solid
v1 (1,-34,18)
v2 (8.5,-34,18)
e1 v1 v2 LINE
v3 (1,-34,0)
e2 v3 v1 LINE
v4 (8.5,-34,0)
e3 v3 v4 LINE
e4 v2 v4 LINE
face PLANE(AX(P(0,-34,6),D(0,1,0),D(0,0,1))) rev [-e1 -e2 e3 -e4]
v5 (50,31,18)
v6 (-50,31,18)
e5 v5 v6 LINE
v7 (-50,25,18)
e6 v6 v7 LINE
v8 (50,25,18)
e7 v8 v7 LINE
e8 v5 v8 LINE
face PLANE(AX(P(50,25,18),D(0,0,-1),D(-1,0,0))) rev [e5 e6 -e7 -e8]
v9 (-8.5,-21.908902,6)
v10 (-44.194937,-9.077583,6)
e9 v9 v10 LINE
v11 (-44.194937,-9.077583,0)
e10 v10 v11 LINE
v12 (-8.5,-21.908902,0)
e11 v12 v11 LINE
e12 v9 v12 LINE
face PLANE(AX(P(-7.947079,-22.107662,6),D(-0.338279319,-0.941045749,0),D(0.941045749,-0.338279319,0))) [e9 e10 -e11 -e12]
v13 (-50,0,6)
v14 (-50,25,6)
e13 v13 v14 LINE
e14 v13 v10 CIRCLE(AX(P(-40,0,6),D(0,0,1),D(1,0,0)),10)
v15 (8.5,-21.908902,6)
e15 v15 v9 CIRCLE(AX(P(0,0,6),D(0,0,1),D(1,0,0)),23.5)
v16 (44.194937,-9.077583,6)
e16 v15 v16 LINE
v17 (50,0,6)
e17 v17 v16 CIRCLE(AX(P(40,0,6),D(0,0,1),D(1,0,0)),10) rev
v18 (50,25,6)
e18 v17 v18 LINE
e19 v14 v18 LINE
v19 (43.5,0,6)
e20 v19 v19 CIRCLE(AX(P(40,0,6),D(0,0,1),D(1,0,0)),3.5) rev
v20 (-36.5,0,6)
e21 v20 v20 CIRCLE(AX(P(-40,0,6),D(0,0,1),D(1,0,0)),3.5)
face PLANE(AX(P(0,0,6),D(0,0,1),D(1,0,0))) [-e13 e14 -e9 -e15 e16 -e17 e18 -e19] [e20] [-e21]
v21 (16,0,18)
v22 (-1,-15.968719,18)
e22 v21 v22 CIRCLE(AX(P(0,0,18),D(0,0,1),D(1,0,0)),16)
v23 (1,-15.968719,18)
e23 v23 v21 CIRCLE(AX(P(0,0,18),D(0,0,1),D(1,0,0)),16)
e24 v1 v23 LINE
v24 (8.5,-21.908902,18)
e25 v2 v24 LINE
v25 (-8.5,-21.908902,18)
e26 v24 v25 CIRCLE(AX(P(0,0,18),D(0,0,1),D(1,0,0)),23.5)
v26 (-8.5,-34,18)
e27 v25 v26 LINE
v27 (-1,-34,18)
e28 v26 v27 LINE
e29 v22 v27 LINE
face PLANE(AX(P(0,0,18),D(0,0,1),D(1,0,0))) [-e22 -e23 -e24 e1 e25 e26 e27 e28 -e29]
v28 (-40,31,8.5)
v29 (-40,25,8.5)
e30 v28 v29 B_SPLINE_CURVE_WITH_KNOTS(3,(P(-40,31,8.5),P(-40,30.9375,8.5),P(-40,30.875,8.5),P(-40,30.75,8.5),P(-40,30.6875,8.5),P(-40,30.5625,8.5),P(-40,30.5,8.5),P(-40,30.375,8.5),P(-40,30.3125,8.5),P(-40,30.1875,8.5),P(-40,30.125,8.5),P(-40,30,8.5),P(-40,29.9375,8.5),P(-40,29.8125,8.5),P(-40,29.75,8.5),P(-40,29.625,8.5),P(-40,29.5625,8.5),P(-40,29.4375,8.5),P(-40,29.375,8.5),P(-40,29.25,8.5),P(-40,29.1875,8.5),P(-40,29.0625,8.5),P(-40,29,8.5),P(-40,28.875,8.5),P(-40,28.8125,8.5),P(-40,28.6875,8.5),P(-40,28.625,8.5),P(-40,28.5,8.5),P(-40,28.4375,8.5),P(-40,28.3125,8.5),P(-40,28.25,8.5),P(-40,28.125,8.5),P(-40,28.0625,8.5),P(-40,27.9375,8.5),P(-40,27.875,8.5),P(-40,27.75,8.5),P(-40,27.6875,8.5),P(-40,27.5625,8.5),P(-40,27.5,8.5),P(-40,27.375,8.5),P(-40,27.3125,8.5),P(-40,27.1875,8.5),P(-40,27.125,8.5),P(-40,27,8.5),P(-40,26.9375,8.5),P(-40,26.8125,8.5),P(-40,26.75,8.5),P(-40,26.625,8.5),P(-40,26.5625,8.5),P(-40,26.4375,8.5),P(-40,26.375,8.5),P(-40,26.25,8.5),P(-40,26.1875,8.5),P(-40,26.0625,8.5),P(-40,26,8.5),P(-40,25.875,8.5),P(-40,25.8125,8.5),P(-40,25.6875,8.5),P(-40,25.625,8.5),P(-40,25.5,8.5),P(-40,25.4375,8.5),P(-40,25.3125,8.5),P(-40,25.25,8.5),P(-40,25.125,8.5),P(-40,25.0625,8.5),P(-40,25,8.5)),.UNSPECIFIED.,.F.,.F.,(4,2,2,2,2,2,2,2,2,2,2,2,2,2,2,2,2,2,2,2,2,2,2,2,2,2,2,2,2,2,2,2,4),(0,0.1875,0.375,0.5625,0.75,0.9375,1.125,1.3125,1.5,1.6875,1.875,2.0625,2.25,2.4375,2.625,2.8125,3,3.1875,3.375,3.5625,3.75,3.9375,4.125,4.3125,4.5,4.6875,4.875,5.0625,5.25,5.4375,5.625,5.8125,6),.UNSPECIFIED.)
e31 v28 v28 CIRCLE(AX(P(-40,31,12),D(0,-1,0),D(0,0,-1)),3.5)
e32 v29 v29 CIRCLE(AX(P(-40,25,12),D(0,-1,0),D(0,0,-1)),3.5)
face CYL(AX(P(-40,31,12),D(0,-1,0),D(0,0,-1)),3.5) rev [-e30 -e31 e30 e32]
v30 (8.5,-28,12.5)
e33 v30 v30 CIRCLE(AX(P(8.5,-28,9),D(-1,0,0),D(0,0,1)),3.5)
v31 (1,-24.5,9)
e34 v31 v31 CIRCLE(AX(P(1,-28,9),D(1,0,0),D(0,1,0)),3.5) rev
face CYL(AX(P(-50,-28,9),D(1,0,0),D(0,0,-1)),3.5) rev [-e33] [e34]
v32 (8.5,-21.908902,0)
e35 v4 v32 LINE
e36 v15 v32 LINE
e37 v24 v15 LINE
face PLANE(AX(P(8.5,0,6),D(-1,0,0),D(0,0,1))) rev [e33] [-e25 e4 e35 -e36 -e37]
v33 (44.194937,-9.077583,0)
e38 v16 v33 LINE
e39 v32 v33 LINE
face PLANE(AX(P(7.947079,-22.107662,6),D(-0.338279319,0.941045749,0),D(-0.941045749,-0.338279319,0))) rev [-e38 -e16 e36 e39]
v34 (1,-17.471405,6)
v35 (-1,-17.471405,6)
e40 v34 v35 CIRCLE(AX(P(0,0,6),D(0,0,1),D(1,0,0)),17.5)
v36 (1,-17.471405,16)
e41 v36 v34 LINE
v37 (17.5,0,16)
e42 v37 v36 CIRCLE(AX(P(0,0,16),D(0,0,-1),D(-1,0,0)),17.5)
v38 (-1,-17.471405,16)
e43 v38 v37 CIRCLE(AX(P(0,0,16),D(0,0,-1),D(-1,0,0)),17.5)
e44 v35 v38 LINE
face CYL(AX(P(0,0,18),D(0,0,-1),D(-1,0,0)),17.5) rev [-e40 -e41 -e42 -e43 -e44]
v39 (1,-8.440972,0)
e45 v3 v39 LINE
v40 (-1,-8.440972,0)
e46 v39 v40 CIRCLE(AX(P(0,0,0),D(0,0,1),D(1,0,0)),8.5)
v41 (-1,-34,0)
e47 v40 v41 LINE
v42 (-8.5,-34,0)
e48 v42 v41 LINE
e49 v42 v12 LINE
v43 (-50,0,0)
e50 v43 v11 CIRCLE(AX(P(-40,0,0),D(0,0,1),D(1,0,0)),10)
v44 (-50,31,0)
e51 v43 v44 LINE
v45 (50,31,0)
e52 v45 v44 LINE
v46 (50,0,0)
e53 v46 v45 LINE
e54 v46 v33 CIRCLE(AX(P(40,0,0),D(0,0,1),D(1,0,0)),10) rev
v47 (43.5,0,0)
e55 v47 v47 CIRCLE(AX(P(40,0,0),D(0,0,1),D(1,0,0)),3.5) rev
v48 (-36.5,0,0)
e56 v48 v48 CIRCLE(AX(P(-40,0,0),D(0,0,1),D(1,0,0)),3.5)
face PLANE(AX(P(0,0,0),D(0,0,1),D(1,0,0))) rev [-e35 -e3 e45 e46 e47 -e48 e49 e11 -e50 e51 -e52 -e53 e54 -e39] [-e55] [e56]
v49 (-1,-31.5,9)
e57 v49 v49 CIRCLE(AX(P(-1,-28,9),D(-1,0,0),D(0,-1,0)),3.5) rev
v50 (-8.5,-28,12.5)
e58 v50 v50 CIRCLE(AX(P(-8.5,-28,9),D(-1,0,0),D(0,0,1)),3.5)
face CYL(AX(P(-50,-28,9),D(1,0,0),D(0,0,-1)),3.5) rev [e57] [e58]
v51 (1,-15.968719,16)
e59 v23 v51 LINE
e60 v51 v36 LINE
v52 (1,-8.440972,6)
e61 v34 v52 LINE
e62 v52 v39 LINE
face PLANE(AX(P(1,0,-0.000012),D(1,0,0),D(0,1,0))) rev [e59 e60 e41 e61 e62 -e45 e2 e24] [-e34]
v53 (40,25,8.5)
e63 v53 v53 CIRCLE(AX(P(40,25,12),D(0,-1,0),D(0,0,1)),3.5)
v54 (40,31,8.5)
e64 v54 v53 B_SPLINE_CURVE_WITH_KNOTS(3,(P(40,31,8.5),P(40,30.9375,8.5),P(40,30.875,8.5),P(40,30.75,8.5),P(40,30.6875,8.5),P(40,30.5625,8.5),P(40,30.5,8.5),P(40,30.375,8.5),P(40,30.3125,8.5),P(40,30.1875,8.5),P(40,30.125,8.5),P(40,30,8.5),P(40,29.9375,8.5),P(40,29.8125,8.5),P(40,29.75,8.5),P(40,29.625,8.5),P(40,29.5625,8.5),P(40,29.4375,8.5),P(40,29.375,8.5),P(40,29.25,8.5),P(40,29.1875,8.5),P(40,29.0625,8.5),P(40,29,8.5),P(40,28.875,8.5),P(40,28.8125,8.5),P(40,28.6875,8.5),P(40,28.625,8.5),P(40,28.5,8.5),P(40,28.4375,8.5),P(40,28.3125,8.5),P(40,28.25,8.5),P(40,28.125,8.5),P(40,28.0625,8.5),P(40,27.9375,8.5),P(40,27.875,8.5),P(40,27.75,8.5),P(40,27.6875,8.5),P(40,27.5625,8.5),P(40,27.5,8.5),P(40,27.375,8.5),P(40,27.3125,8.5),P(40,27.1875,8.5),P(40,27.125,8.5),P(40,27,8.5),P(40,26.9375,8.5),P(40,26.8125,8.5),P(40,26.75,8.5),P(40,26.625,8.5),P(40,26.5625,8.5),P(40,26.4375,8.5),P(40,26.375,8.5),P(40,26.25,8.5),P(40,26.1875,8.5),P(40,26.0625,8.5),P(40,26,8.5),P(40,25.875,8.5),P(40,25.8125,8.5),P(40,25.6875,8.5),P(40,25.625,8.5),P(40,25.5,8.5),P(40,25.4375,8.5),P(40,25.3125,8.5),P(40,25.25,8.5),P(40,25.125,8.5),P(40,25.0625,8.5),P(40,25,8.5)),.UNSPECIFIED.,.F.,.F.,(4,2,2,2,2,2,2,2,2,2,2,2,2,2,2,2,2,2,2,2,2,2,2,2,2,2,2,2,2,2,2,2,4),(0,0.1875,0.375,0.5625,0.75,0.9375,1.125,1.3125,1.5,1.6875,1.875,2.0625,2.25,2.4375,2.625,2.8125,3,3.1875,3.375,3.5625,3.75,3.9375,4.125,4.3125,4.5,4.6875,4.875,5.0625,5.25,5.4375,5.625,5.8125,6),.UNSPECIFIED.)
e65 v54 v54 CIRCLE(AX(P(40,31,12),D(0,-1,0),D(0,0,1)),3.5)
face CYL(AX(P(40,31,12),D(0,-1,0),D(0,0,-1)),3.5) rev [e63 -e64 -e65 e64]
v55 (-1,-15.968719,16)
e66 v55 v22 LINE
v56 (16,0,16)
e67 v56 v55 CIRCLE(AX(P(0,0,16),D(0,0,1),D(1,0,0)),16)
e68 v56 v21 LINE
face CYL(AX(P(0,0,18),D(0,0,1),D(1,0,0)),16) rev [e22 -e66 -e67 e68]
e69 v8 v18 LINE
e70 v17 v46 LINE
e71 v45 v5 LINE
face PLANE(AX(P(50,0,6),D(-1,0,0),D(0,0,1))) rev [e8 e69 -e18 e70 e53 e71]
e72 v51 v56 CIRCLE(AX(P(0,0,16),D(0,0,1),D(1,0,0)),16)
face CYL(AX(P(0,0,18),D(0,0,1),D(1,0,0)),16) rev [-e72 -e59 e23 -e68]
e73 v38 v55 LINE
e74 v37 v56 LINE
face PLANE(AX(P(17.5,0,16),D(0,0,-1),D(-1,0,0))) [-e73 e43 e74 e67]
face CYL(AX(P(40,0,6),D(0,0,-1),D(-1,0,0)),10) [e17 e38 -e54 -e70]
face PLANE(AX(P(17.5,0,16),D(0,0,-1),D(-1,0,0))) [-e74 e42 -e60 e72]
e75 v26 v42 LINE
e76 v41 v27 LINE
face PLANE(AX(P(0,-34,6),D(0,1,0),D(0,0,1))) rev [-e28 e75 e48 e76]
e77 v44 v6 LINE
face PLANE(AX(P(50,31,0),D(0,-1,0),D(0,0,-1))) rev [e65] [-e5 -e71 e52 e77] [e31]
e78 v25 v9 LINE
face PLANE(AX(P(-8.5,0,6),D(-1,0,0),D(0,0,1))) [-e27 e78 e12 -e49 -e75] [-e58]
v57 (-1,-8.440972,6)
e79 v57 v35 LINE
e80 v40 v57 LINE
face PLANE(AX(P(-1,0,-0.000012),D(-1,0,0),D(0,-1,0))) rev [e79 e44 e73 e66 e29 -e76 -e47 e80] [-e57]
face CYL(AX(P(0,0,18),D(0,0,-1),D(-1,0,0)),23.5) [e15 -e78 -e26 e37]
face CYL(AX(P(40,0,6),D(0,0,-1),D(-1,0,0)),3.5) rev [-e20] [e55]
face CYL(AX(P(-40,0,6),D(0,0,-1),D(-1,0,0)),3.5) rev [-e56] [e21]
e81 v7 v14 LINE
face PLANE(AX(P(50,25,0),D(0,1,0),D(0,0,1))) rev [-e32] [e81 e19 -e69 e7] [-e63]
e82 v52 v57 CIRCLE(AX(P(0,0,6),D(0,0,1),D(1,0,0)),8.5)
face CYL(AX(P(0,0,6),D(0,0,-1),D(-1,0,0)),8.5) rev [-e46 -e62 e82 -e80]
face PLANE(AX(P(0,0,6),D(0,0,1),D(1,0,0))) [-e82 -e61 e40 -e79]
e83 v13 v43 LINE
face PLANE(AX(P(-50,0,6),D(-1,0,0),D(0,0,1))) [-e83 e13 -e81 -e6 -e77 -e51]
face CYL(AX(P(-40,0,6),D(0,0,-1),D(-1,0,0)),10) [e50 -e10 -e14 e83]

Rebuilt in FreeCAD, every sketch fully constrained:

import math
import FreeCAD as App
import Part
import Sketcher
Q = App.Units.Quantity

doc = App.newDocument("Part")
body = doc.addObject("PartDesign::Body", "Body")

# Sketch on XY plane
sketch1 = body.newObject("Sketcher::SketchObject", "Sketch")
sketch1.AttachmentSupport = (doc.getObject("XY_Plane"), [""])
sketch1.MapMode = "FlatFace"
sketch1.addGeometry([
    Part.LineSegment(App.Vector(-42.5, -9.7, 0), App.Vector(-8.5, -21.9, 0)),  # 0
    Part.LineSegment(App.Vector(-8.5, -21.9, 0), App.Vector(-8.5, -34, 0)),  # 1
    Part.LineSegment(App.Vector(-8.5, -34, 0), App.Vector(8.5, -34, 0)),  # 2
    Part.LineSegment(App.Vector(8.5, -34, 0), App.Vector(8.5, -21.9, 0)),  # 3
    Part.LineSegment(App.Vector(8.5, -21.9, 0), App.Vector(42.5, -9.7, 0)),  # 4
    Part.LineSegment(App.Vector(42.5, -9.7, 0), App.Vector(44.2, -9.1, 0)),  # 5
    Part.ArcOfCircle(Part.Circle(App.Vector(40, 0, 0), App.Vector(0, 0, 1), 10), math.radians(-65), math.radians(0)),  # 6
    Part.LineSegment(App.Vector(50, 0, 0), App.Vector(50, 25, 0)),  # 7
    Part.LineSegment(App.Vector(50, 25, 0), App.Vector(-50, 25, 0)),  # 8
    Part.LineSegment(App.Vector(-50, 25, 0), App.Vector(-50, 0, 0)),  # 9
    Part.ArcOfCircle(Part.Circle(App.Vector(-40, 0, 0), App.Vector(0, 0, 1), 10), math.radians(180), math.radians(245)),  # 10
    Part.LineSegment(App.Vector(-44.2, -9.1, 0), App.Vector(-42.5, -9.7, 0)),  # 11
    Part.Circle(App.Vector(-40, 0, 0), App.Vector(0, 0, 1), 3.5),  # 12
    Part.Circle(App.Vector(0, 0, 0), App.Vector(0, 0, 1), 8.5),  # 13
    Part.Circle(App.Vector(40, 0, 0), App.Vector(0, 0, 1), 3.5),  # 14
], False)
sketch1.addConstraint([
    Sketcher.Constraint("Coincident", 0, 2, 1, 1),
    Sketcher.Constraint("Coincident", 1, 2, 2, 1),
    Sketcher.Constraint("Coincident", 2, 2, 3, 1),
    Sketcher.Constraint("Coincident", 3, 2, 4, 1),
    Sketcher.Constraint("Coincident", 4, 2, 5, 1),
    Sketcher.Constraint("Coincident", 5, 2, 6, 1),
    Sketcher.Constraint("Tangent", 6, 2, 7, 1),
    Sketcher.Constraint("Coincident", 7, 2, 8, 1),
    Sketcher.Constraint("Coincident", 8, 2, 9, 1),
    Sketcher.Constraint("Tangent", 9, 2, 10, 1),
    Sketcher.Constraint("Coincident", 10, 2, 11, 1),
    Sketcher.Constraint("Coincident", 11, 2, 0, 1),
    Sketcher.Constraint("Vertical", 1),
    Sketcher.Constraint("Horizontal", 2),
    Sketcher.Constraint("Vertical", 3),
    Sketcher.Constraint("Vertical", 7),
    Sketcher.Constraint("Horizontal", 8),
    Sketcher.Constraint("Vertical", 9),
    Sketcher.Constraint("Coincident", 13, 3, -1, 1),
    Sketcher.Constraint("Coincident", 12, 3, 10, 3),
    Sketcher.Constraint("Coincident", 14, 3, 6, 3),
    Sketcher.Constraint("Equal", 6, 10),
    Sketcher.Constraint("Equal", 12, 14),
    Sketcher.Constraint("Symmetric", 6, 3, 10, 3, -1, 1),
    Sketcher.Constraint("Symmetric", 0, 2, 3, 2, -2),
    Sketcher.Constraint("Symmetric", 5, 2, 10, 2, -2),
    Sketcher.Constraint("Symmetric", 4, 2, 11, 2, -2),
    Sketcher.Constraint("Parallel", 4, 5),
    Sketcher.Constraint("Diameter", 12, Q("7 mm")),
    Sketcher.Constraint("Diameter", 13, Q("17 mm")),
    Sketcher.Constraint("Radius", 6, Q("10 mm")),
    Sketcher.Constraint("DistanceX", 2, 1, 2, 2, Q("17 mm")),
    Sketcher.Constraint("DistanceX", 8, 2, 8, 1, Q("100 mm")),
    Sketcher.Constraint("DistanceY", 7, 1, 7, 2, Q("25 mm")),
    Sketcher.Constraint("DistanceY", 1, 2, -1, 1, Q("34 mm")),
    Sketcher.Constraint("Distance", 0, Q("36.177401 mm")),
    Sketcher.Constraint("Distance", 5, Q("1.753738 mm")),
    Sketcher.Constraint("DistanceY", 1, 2, 1, 1, Q("12.091098 mm")),
])
pad1 = body.newObject("PartDesign::Pad", "Pad")
pad1.Profile = sketch1
pad1.Length = 6

# Sketch on XY plane
sketch2 = body.newObject("Sketcher::SketchObject", "Sketch001")
sketch2.AttachmentSupport = (doc.getObject("XY_Plane"), [""])
sketch2.MapMode = "FlatFace"
sketch2.AttachmentOffset = App.Placement(App.Vector(0, 0, 6), App.Rotation())
sketch2.addGeometry([
    Part.LineSegment(App.Vector(-8, -34, 0), App.Vector(8, -34, 0)),  # 0
    Part.LineSegment(App.Vector(8, -34, 0), App.Vector(8, -22, 0)),  # 1
    Part.ArcOfCircle(Part.Circle(App.Vector(0, 0, 0), App.Vector(0, 0, 1), 24), math.radians(-69), math.radians(249)),  # 2
    Part.LineSegment(App.Vector(-8, -22, 0), App.Vector(-8, -34, 0)),  # 3
    Part.Circle(App.Vector(0, 0, 0), App.Vector(0, 0, 1), 18),  # 4
], False)
sketch2.addConstraint([
    Sketcher.Constraint("Coincident", 0, 2, 1, 1),
    Sketcher.Constraint("Coincident", 1, 2, 2, 1),
    Sketcher.Constraint("Coincident", 2, 2, 3, 1),
    Sketcher.Constraint("Coincident", 3, 2, 0, 1),
    Sketcher.Constraint("Horizontal", 0),
    Sketcher.Constraint("Vertical", 1),
    Sketcher.Constraint("Vertical", 3),
    Sketcher.Constraint("Coincident", 2, 3, -1, 1),
    Sketcher.Constraint("Coincident", 4, 3, -1, 1),
    Sketcher.Constraint("Horizontal", 1, 2, 2, 2),
    Sketcher.Constraint("Diameter", 4, Q("35 mm")),
    Sketcher.Constraint("Radius", 2, Q("23.5 mm")),
    Sketcher.Constraint("DistanceX", 0, 1, 0, 2, Q("17 mm")),
    Sketcher.Constraint("DistanceY", 0, 2, -1, 1, Q("34 mm")),
])
pad2 = body.newObject("PartDesign::Pad", "Pad001")
pad2.Profile = sketch2
pad2.Length = 12

# Sketch on XZ plane
sketch3 = body.newObject("Sketcher::SketchObject", "Sketch002")
sketch3.AttachmentSupport = (doc.getObject("XZ_Plane"), [""])
sketch3.MapMode = "FlatFace"
sketch3.addGeometry([
    Part.LineSegment(App.Vector(16, 16, 0), App.Vector(16, 18, 0)),
    Part.LineSegment(App.Vector(16, 18, 0), App.Vector(17.5, 18, 0)),
    Part.LineSegment(App.Vector(17.5, 18, 0), App.Vector(17.5, 16, 0)),
    Part.LineSegment(App.Vector(17.5, 16, 0), App.Vector(16, 16, 0)),
], False)
sketch3.addConstraint([
    Sketcher.Constraint("Coincident", 0, 2, 1, 1),
    Sketcher.Constraint("Coincident", 1, 2, 2, 1),
    Sketcher.Constraint("Coincident", 2, 2, 3, 1),
    Sketcher.Constraint("Coincident", 3, 2, 0, 1),
    Sketcher.Constraint("Vertical", 0),
    Sketcher.Constraint("Horizontal", 1),
    Sketcher.Constraint("Vertical", 2),
    Sketcher.Constraint("Horizontal", 3),
    Sketcher.Constraint("DistanceY", 0, 1, 0, 2, Q("2 mm")),
    Sketcher.Constraint("DistanceX", 1, 1, 1, 2, Q("1.5 mm")),
    Sketcher.Constraint("DistanceX", -1, 1, 0, 2, Q("16 mm")),
    Sketcher.Constraint("DistanceY", -1, 1, 0, 2, Q("18 mm")),
])

# Sketch on XY plane
sketch4 = body.newObject("Sketcher::SketchObject", "Sketch003")
sketch4.AttachmentSupport = (doc.getObject("XY_Plane"), [""])
sketch4.MapMode = "FlatFace"
sketch4.AttachmentOffset = App.Placement(App.Vector(0, 0, 18), App.Rotation())
sketch4.addGeometry([
    Part.ArcOfCircle(Part.Circle(App.Vector(0, 0, 0), App.Vector(0, 0, 1), 17), math.radians(0), math.radians(90)),
    Part.ArcOfCircle(Part.Circle(App.Vector(0, 0, 0), App.Vector(0, 0, 1), 17), math.radians(90), math.radians(180)),
    Part.ArcOfCircle(Part.Circle(App.Vector(0, 0, 0), App.Vector(0, 0, 1), 17), math.radians(180), math.radians(270)),
    Part.ArcOfCircle(Part.Circle(App.Vector(0, 0, 0), App.Vector(0, 0, 1), 17), math.radians(-90), math.radians(0)),
], False)
sketch4.addConstraint([
    Sketcher.Constraint("Tangent", 0, 2, 1, 1),
    Sketcher.Constraint("Tangent", 1, 2, 2, 1),
    Sketcher.Constraint("Tangent", 2, 2, 3, 1),
    Sketcher.Constraint("Tangent", 3, 2, 0, 1),
    Sketcher.Constraint("Coincident", 0, 3, -1, 1),
    Sketcher.Constraint("Equal", 0, 1),
    Sketcher.Constraint("PointOnObject", 0, 2, -2),
    Sketcher.Constraint("PointOnObject", 1, 2, -1),
    Sketcher.Constraint("PointOnObject", 2, 2, -2),
    Sketcher.Constraint("PointOnObject", 3, 2, -1),
    Sketcher.Constraint("Radius", 0, Q("17.5 mm")),
])
doc.recompute()

additivepipe = body.newObject("PartDesign::AdditivePipe", "AdditivePipe")
additivepipe.Profile = sketch3
additivepipe.Spine = (sketch4, ["Edge1", "Edge2", "Edge3", "Edge4"])

# Sketch on YZ plane
sketch5 = body.newObject("Sketcher::SketchObject", "Sketch004")
sketch5.AttachmentSupport = (doc.getObject("YZ_Plane"), [""])
sketch5.MapMode = "FlatFace"
sketch5.addGeometry(Part.Circle(App.Vector(-28, 9, 0), App.Vector(0, 0, 1), 3.5), False)
sketch5.addConstraint([
    Sketcher.Constraint("Diameter", 0, Q("7 mm")),
    Sketcher.Constraint("DistanceX", 0, 3, -1, 1, Q("28 mm")),
    Sketcher.Constraint("DistanceY", -1, 1, 0, 3, Q("9 mm")),
])
pocket1 = body.newObject("PartDesign::Pocket", "Pocket")
pocket1.Profile = sketch5
pocket1.Type = "ThroughAll"
pocket1.Midplane = True

# Sketch on YZ plane
sketch6 = body.newObject("Sketcher::SketchObject", "Sketch005")
sketch6.AttachmentSupport = (doc.getObject("YZ_Plane"), [""])
sketch6.MapMode = "FlatFace"
sketch6.addGeometry([
    Part.LineSegment(App.Vector(31, 18, 0), App.Vector(25, 18, 0)),
    Part.LineSegment(App.Vector(25, 18, 0), App.Vector(25, 0, 0)),
    Part.LineSegment(App.Vector(25, 0, 0), App.Vector(31, 0, 0)),
    Part.LineSegment(App.Vector(31, 0, 0), App.Vector(31, 18, 0)),
], False)
sketch6.addConstraint([
    Sketcher.Constraint("Coincident", 0, 2, 1, 1),
    Sketcher.Constraint("Coincident", 1, 2, 2, 1),
    Sketcher.Constraint("Coincident", 2, 2, 3, 1),
    Sketcher.Constraint("Coincident", 3, 2, 0, 1),
    Sketcher.Constraint("Horizontal", 0),
    Sketcher.Constraint("Vertical", 1),
    Sketcher.Constraint("Horizontal", 2),
    Sketcher.Constraint("Vertical", 3),
    Sketcher.Constraint("PointOnObject", 1, 2, -1),
    Sketcher.Constraint("DistanceX", 0, 2, 0, 1, Q("6 mm")),
    Sketcher.Constraint("DistanceY", 1, 2, 1, 1, Q("18 mm")),
    Sketcher.Constraint("DistanceX", -1, 1, 0, 2, Q("25 mm")),
])
pad3 = body.newObject("PartDesign::Pad", "Pad002")
pad3.Profile = sketch6
pad3.Type = "TwoLengths"
pad3.Length = 50
pad3.Length2 = 50

# Sketch on XY plane
sketch7 = body.newObject("Sketcher::SketchObject", "Sketch006")
sketch7.AttachmentSupport = (doc.getObject("XY_Plane"), [""])
sketch7.MapMode = "FlatFace"
sketch7.addGeometry([
    Part.LineSegment(App.Vector(-1, 0, 0), App.Vector(-1, -34, 0)),
    Part.LineSegment(App.Vector(-1, -34, 0), App.Vector(1, -34, 0)),
    Part.LineSegment(App.Vector(1, -34, 0), App.Vector(1, 0, 0)),
    Part.LineSegment(App.Vector(1, 0, 0), App.Vector(-1, 0, 0)),
], False)
sketch7.addConstraint([
    Sketcher.Constraint("Coincident", 0, 2, 1, 1),
    Sketcher.Constraint("Coincident", 1, 2, 2, 1),
    Sketcher.Constraint("Coincident", 2, 2, 3, 1),
    Sketcher.Constraint("Coincident", 3, 2, 0, 1),
    Sketcher.Constraint("Vertical", 0),
    Sketcher.Constraint("Horizontal", 1),
    Sketcher.Constraint("Vertical", 2),
    Sketcher.Constraint("Horizontal", 3),
    Sketcher.Constraint("Symmetric", 2, 2, 3, 2, -1, 1),
    Sketcher.Constraint("DistanceX", 1, 1, 1, 2, Q("2 mm")),
    Sketcher.Constraint("DistanceY", 0, 2, 0, 1, Q("34 mm")),
])
pocket2 = body.newObject("PartDesign::Pocket", "Pocket001")
pocket2.Profile = sketch7
pocket2.Type = "ThroughAll"
pocket2.Midplane = True

# Sketch on XZ plane
sketch8 = body.newObject("Sketcher::SketchObject", "Sketch007")
sketch8.AttachmentSupport = (doc.getObject("XZ_Plane"), [""])
sketch8.MapMode = "FlatFace"
sketch8.AttachmentOffset = App.Placement(App.Vector(0, 0, -25), App.Rotation())
sketch8.addGeometry([
    Part.Circle(App.Vector(-40, 12, 0), App.Vector(0, 0, 1), 3.5),
    Part.Circle(App.Vector(40, 12, 0), App.Vector(0, 0, 1), 3.5),
], False)
sketch8.addConstraint([
    Sketcher.Constraint("Equal", 0, 1),
    Sketcher.Constraint("Symmetric", 0, 3, 1, 3, -2),
    Sketcher.Constraint("Diameter", 0, Q("7 mm")),
    Sketcher.Constraint("DistanceX", 0, 3, -1, 1, Q("40 mm")),
    Sketcher.Constraint("DistanceY", -1, 1, 0, 3, Q("12 mm")),
])
pocket3 = body.newObject("PartDesign::Pocket", "Pocket002")
pocket3.Profile = sketch8
pocket3.Type = "ThroughAll"

doc.recompute()
